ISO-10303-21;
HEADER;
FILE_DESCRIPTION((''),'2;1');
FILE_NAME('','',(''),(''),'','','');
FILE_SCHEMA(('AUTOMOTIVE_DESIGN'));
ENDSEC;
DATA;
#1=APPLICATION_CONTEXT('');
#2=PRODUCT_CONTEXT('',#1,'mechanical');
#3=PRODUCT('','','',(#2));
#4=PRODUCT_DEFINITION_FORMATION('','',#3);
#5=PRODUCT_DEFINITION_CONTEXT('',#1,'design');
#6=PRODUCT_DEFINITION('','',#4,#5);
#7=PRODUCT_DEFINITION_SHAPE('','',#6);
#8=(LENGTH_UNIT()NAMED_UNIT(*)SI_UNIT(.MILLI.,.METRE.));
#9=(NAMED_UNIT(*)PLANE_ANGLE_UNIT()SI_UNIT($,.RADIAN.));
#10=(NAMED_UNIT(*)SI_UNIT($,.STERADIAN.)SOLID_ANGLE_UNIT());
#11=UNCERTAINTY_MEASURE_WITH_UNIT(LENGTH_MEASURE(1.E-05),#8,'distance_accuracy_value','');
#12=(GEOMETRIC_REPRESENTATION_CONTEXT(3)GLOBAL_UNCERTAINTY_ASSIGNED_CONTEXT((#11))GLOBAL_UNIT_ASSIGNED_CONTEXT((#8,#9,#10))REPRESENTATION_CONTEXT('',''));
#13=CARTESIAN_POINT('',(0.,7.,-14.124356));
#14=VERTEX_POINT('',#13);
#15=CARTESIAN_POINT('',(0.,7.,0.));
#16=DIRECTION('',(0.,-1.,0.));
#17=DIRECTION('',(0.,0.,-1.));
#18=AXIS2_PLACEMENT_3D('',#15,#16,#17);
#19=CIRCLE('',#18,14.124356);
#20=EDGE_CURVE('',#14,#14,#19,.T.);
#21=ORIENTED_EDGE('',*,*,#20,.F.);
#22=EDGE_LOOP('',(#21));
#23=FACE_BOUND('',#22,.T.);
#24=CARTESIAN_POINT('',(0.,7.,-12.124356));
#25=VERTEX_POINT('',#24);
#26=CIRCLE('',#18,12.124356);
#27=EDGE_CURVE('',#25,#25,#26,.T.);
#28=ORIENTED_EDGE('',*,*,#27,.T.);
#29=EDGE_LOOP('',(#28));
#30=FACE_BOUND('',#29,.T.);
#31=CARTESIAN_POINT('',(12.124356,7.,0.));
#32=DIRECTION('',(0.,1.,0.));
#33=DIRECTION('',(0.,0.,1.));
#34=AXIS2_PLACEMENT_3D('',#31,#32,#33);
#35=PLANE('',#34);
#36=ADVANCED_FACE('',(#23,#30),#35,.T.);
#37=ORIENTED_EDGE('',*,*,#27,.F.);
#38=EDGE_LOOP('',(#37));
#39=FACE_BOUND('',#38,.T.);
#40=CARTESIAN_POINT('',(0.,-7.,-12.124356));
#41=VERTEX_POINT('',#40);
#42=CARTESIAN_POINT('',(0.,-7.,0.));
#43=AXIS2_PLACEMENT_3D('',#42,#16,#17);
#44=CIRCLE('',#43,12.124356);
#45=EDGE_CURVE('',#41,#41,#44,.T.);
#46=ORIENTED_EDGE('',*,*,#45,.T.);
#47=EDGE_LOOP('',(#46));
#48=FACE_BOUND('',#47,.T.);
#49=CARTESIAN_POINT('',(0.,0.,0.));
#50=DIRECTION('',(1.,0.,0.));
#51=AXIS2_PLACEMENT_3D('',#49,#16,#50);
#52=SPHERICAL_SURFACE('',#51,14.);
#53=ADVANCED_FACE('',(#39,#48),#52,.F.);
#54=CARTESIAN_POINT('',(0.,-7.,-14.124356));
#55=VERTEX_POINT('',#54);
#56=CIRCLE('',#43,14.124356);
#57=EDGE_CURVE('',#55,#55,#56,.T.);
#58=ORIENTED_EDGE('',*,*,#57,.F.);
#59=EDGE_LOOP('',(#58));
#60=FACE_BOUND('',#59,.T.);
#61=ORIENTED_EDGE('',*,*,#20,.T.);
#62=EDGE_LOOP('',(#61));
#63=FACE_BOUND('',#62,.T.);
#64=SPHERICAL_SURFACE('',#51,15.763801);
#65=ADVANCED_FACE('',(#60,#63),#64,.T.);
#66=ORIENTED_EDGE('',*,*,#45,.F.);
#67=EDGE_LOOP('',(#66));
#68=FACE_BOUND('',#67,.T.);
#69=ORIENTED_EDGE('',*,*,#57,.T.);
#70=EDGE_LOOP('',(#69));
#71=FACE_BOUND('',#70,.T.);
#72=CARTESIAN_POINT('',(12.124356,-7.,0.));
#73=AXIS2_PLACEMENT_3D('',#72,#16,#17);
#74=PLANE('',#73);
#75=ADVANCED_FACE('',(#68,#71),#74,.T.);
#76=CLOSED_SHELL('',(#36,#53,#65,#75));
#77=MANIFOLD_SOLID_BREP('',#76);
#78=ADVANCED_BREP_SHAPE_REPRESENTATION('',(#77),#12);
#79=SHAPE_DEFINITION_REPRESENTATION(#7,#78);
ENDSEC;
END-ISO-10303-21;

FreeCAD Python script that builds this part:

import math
import FreeCAD as App
import Part
import Sketcher
Q = App.Units.Quantity

doc = App.newDocument("Part")
params = doc.addObject("Spreadsheet::Sheet", "Params")
for row, (alias, value) in enumerate([
    ("sketch1_radius", "14 mm"),
    ("sketch1_width", "2 mm"),
    ("revolution_angle", "360 deg"),
], start=1):
    params.set(f"A{row}", alias)
    params.set(f"B{row}", "=" + value)
    params.setAlias(f"B{row}", alias)

body = doc.addObject("PartDesign::Body", "Body")

# Sketch on XY plane
sketch1 = body.newObject("Sketcher::SketchObject", "Sketch")
sketch1.AttachmentSupport = (doc.getObject("XY_Plane"), [""])
sketch1.MapMode = "FlatFace"
sketch1.addGeometry(Part.LineSegment(App.Vector(14.1, 7, 0), App.Vector(12.1, 7, 0)), False)
sketch1.addGeometry(Part.ArcOfCircle(Part.Circle(App.Vector(0, 0, 0), App.Vector(0, 0, 1), 14), math.radians(0), math.radians(30)), False)
sketch1.addGeometry(Part.ArcOfCircle(Part.Circle(App.Vector(0, 0, 0), App.Vector(0, 0, 1), 14), math.radians(-30), math.radians(0)), False)
sketch1.addGeometry(Part.LineSegment(App.Vector(12.1, -7, 0), App.Vector(14.1, -7, 0)), False)
sketch1.addGeometry(Part.ArcOfCircle(Part.Circle(App.Vector(0, 0, 0), App.Vector(0, 0, 1), 15.8), math.radians(-26), math.radians(26)), False)
sketch1.addConstraint(Sketcher.Constraint("Coincident", 0, 2, 1, 2))
sketch1.addConstraint(Sketcher.Constraint("Tangent", 1, 1, 2, 2))
sketch1.addConstraint(Sketcher.Constraint("Coincident", 2, 1, 3, 1))
sketch1.addConstraint(Sketcher.Constraint("Coincident", 3, 2, 4, 1))
sketch1.addConstraint(Sketcher.Constraint("Coincident", 4, 2, 0, 1))
sketch1.addConstraint(Sketcher.Constraint("Horizontal", 0))
sketch1.addConstraint(Sketcher.Constraint("Horizontal", 3))
sketch1.addConstraint(Sketcher.Constraint("Coincident", 1, 3, -1, 1))
sketch1.addConstraint(Sketcher.Constraint("Coincident", 4, 3, -1, 1))
sketch1.addConstraint(Sketcher.Constraint("Equal", 1, 2))
sketch1.addConstraint(Sketcher.Constraint("PointOnObject", 1, 1, -1))
sketch1.addConstraint(Sketcher.Constraint("Vertical", 0, 2, 2, 1))
sketch1.addConstraint(Sketcher.Constraint("Radius", 1, Q("14 mm")))
sketch1.addConstraint(Sketcher.Constraint("DistanceX", 0, 2, 0, 1, Q("2 mm")))
sketch1.addConstraint(Sketcher.Constraint("DistanceY", -1, 1, 0, 2, Q("7 mm")))
sketch1.setExpression("Constraints[12]", "Params.sketch1_radius")
sketch1.setExpression("Constraints[13]", "Params.sketch1_width")
revolution = body.newObject("PartDesign::Revolution", "Revolution")
revolution.Profile = sketch1
revolution.ReferenceAxis = (sketch1, ["V_Axis"])
revolution.setExpression("Angle", "Params.revolution_angle")

doc.recompute()
